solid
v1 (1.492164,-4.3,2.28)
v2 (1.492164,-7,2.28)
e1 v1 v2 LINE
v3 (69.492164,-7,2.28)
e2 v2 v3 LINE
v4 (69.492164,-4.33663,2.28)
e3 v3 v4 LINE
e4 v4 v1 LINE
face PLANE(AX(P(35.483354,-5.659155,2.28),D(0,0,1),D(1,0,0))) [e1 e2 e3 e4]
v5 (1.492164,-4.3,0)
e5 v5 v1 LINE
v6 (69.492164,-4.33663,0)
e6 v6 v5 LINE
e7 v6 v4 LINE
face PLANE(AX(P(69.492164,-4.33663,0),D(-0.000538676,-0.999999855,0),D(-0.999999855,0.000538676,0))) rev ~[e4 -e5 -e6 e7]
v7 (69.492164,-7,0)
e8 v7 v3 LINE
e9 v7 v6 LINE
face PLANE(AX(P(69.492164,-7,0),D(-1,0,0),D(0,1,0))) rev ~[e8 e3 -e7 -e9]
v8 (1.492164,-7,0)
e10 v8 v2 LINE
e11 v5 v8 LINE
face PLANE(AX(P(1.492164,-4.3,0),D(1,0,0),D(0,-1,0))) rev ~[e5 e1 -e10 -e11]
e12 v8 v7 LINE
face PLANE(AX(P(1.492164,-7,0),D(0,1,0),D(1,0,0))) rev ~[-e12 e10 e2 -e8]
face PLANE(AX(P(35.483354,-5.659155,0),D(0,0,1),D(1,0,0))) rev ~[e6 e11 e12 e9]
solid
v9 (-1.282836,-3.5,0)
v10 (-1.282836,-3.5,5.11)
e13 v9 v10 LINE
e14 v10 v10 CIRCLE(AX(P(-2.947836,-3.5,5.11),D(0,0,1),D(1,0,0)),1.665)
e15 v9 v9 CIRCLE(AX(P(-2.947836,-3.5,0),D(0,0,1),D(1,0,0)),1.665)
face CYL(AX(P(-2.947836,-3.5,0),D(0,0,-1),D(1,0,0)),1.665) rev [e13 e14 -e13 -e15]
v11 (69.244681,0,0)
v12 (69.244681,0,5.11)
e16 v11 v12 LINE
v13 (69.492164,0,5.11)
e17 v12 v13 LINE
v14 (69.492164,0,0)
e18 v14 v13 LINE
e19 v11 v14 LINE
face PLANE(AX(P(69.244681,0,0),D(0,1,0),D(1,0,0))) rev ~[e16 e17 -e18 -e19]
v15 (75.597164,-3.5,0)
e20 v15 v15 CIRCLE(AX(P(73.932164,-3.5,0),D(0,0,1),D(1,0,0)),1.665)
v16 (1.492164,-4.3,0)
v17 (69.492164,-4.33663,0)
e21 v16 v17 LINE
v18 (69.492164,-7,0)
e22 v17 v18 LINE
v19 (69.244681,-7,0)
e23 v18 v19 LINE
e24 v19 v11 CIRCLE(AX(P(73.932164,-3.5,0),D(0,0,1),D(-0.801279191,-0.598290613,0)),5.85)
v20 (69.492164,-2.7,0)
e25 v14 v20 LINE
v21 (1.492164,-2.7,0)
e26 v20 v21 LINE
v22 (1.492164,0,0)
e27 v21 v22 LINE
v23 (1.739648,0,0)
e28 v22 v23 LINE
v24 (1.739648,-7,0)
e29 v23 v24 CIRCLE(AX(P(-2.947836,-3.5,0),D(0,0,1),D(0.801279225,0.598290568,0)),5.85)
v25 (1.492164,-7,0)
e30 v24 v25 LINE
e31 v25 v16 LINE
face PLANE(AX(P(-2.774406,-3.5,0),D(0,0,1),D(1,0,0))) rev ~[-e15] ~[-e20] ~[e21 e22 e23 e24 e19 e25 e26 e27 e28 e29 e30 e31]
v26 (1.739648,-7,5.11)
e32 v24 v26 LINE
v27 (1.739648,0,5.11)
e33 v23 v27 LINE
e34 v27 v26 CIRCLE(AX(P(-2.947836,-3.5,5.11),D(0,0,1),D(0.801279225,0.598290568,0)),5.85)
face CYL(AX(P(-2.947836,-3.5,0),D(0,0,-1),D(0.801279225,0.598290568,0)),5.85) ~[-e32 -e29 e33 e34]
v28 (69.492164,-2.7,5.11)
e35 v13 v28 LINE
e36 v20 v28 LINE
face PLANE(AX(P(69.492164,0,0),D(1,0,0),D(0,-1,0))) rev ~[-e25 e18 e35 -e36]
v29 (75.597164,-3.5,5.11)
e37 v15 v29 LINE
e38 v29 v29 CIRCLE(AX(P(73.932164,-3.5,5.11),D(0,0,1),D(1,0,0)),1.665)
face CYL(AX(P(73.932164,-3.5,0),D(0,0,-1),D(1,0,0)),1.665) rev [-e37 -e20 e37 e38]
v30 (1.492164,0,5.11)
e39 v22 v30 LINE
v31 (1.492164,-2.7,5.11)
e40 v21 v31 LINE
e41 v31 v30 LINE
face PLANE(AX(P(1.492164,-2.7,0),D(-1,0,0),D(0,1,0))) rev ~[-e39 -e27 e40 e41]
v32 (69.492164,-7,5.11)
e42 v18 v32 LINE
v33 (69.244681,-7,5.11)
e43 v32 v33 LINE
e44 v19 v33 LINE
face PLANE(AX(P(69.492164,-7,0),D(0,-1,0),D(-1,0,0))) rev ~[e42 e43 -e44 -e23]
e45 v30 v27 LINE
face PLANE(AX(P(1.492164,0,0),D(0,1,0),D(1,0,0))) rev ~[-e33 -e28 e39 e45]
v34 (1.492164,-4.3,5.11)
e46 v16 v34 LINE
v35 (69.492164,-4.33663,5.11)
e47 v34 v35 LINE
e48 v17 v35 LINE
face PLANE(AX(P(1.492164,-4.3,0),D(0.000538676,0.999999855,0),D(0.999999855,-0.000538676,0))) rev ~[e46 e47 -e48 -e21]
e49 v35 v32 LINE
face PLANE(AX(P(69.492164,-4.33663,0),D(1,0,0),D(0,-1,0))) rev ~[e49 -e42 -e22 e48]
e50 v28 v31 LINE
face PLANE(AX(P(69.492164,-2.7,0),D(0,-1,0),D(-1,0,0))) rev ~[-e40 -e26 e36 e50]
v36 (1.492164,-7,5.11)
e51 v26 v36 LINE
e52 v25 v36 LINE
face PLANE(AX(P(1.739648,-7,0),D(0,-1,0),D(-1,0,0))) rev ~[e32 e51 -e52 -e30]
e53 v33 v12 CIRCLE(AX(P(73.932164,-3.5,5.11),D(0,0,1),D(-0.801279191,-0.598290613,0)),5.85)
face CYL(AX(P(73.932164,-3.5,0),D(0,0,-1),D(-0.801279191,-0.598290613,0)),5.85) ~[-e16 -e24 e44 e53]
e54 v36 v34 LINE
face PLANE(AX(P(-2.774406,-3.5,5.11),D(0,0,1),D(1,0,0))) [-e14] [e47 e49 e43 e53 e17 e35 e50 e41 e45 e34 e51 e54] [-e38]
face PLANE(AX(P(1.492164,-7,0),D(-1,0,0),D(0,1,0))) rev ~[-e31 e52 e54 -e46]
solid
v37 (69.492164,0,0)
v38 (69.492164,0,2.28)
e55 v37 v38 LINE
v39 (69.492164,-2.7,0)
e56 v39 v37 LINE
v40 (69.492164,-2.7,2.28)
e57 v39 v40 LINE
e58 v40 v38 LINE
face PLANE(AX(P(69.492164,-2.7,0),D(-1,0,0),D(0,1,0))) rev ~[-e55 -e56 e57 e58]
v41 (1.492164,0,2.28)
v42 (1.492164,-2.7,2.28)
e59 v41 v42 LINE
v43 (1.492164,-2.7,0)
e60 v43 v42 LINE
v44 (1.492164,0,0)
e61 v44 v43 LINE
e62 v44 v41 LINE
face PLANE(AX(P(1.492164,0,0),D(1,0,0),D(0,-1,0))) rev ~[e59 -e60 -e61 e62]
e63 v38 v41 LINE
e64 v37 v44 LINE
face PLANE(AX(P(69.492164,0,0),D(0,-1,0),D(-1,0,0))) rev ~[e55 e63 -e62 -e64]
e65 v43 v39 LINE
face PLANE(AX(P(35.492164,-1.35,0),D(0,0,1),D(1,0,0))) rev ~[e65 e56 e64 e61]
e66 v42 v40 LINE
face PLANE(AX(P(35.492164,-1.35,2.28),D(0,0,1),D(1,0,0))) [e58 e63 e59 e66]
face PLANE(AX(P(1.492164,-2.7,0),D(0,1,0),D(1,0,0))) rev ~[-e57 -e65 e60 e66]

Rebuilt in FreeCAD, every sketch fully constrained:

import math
import FreeCAD as App
import Part
import Sketcher


def add_polygon(sketch, points):
    """Adds a closed chain of lines whose ends are joined by coincident constraints."""
    first, n = sketch.GeometryCount, len(points)
    for a, b in zip(points, points[1:] + points[:1]):
        sketch.addGeometry(Part.LineSegment(App.Vector(*a, 0), App.Vector(*b, 0)), False)
    for i in range(n):
        sketch.addConstraint(Sketcher.Constraint("Coincident", first + i, 2, first + (i + 1) % n, 1))

doc = App.newDocument("Part")
body = doc.addObject("PartDesign::Body", "Body")
body.AllowCompound = True

sketch1 = body.newObject("Sketcher::SketchObject", "Sketch")
sketch1.AttachmentSupport = (doc.getObject("XY_Plane"), [""])
sketch1.MapMode = "FlatFace"
add_polygon(sketch1, [(1.492164, 0), (1.492164, -2.7), (69.492164, -2.7), (69.492164, 0)])
add_polygon(sketch1, [(1.492164, -7), (69.492164, -7), (69.492164, -4.33663), (1.492164, -4.3)])
sketch1.addConstraint(Sketcher.Constraint("Vertical", 0))
sketch1.addConstraint(Sketcher.Constraint("Horizontal", 1))
sketch1.addConstraint(Sketcher.Constraint("Vertical", 2))
sketch1.addConstraint(Sketcher.Constraint("Horizontal", 3))
sketch1.addConstraint(Sketcher.Constraint("Horizontal", 4))
sketch1.addConstraint(Sketcher.Constraint("Vertical", 5))
sketch1.addConstraint(Sketcher.Constraint("Vertical", 7))
sketch1.addConstraint(Sketcher.Constraint("PointOnObject", 2, 2, -1))
sketch1.addConstraint(Sketcher.Constraint("Vertical", 2, 2, 4, 2))
sketch1.addConstraint(Sketcher.Constraint("Vertical", 3, 2, 6, 2))
sketch1.addConstraint(Sketcher.Constraint("Equal", 2, 7))
sketch1.addConstraint(Sketcher.Constraint("DistanceX", 1, 1, 1, 2, 68.0))
sketch1.addConstraint(Sketcher.Constraint("DistanceY", 0, 2, 0, 1, 2.7))
sketch1.addConstraint(Sketcher.Constraint("DistanceY", 4, 2, -1, 1, 7.0))
sketch1.addConstraint(Sketcher.Constraint("DistanceY", 5, 1, 5, 2, 2.66337))
sketch1.addConstraint(Sketcher.Constraint("DistanceX", -1, 1, 0, 2, 1.492164))
pad1 = body.newObject("PartDesign::Pad", "Pad")
pad1.Profile = sketch1
pad1.Length = 2.28
body2 = doc.addObject("PartDesign::Body", "Body001")

sketch2 = body2.newObject("Sketcher::SketchObject", "Sketch001")
sketch2.AttachmentSupport = (doc.getObject("XY_Plane001"), [""])
sketch2.MapMode = "FlatFace"
sketch2.addGeometry(Part.LineSegment(App.Vector(1.492164, 0, 0), App.Vector(1.739648, 0, 0)), False)
sketch2.addGeometry(Part.ArcOfCircle(Part.Circle(App.Vector(-2.947836, -3.5, 0), App.Vector(0, 0, 1), 5.85), math.radians(36.747566), math.radians(323.252434)), False)
sketch2.addGeometry(Part.LineSegment(App.Vector(1.739648, -7, 0), App.Vector(1.492164, -7, 0)), False)
sketch2.addGeometry(Part.LineSegment(App.Vector(1.492164, -7, 0), App.Vector(1.492164, -4.3, 0)), False)
sketch2.addGeometry(Part.LineSegment(App.Vector(1.492164, -4.3, 0), App.Vector(69.492164, -4.33663, 0)), False)
sketch2.addGeometry(Part.LineSegment(App.Vector(69.492164, -4.33663, 0), App.Vector(69.492164, -7, 0)), False)
sketch2.addGeometry(Part.LineSegment(App.Vector(69.492164, -7, 0), App.Vector(69.244681, -7, 0)), False)
sketch2.addGeometry(Part.ArcOfCircle(Part.Circle(App.Vector(73.932164, -3.5, 0), App.Vector(0, 0, 1), 5.85), math.radians(-143.25243), math.radians(143.25243)), False)
sketch2.addGeometry(Part.LineSegment(App.Vector(69.244681, 0, 0), App.Vector(69.492164, 0, 0)), False)
sketch2.addGeometry(Part.LineSegment(App.Vector(69.492164, 0, 0), App.Vector(69.492164, -2.7, 0)), False)
sketch2.addGeometry(Part.LineSegment(App.Vector(69.492164, -2.7, 0), App.Vector(1.492164, -2.7, 0)), False)
sketch2.addGeometry(Part.LineSegment(App.Vector(1.492164, -2.7, 0), App.Vector(1.492164, 0, 0)), False)
sketch2.addGeometry(Part.Circle(App.Vector(-2.947836, -3.5, 0), App.Vector(0, 0, 1), 1.665), False)
sketch2.addGeometry(Part.Circle(App.Vector(73.932164, -3.5, 0), App.Vector(0, 0, 1), 1.665), False)
sketch2.addConstraint(Sketcher.Constraint("Coincident", 0, 2, 1, 1))
sketch2.addConstraint(Sketcher.Constraint("Coincident", 1, 2, 2, 1))
sketch2.addConstraint(Sketcher.Constraint("Coincident", 2, 2, 3, 1))
sketch2.addConstraint(Sketcher.Constraint("Coincident", 3, 2, 4, 1))
sketch2.addConstraint(Sketcher.Constraint("Coincident", 4, 2, 5, 1))
sketch2.addConstraint(Sketcher.Constraint("Coincident", 5, 2, 6, 1))
sketch2.addConstraint(Sketcher.Constraint("Coincident", 6, 2, 7, 1))
sketch2.addConstraint(Sketcher.Constraint("Coincident", 7, 2, 8, 1))
sketch2.addConstraint(Sketcher.Constraint("Coincident", 8, 2, 9, 1))
sketch2.addConstraint(Sketcher.Constraint("Coincident", 9, 2, 10, 1))
sketch2.addConstraint(Sketcher.Constraint("Coincident", 10, 2, 11, 1))
sketch2.addConstraint(Sketcher.Constraint("Coincident", 11, 2, 0, 1))
sketch2.addConstraint(Sketcher.Constraint("Horizontal", 0))
sketch2.addConstraint(Sketcher.Constraint("Horizontal", 2))
sketch2.addConstraint(Sketcher.Constraint("Vertical", 3))
sketch2.addConstraint(Sketcher.Constraint("Vertical", 5))
sketch2.addConstraint(Sketcher.Constraint("Horizontal", 6))
sketch2.addConstraint(Sketcher.Constraint("Horizontal", 8))
sketch2.addConstraint(Sketcher.Constraint("Vertical", 9))
sketch2.addConstraint(Sketcher.Constraint("Horizontal", 10))
sketch2.addConstraint(Sketcher.Constraint("Vertical", 11))
sketch2.addConstraint(Sketcher.Constraint("Coincident", 12, 3, 1, 3))
sketch2.addConstraint(Sketcher.Constraint("Coincident", 13, 3, 7, 3))
sketch2.addConstraint(Sketcher.Constraint("Equal", 1, 7))
sketch2.addConstraint(Sketcher.Constraint("Equal", 12, 13))
sketch2.addConstraint(Sketcher.Constraint("PointOnObject", 0, 2, -1))
sketch2.addConstraint(Sketcher.Constraint("PointOnObject", 7, 2, -1))
sketch2.addConstraint(Sketcher.Constraint("Horizontal", 1, 3, 7, 3))
sketch2.addConstraint(Sketcher.Constraint("Horizontal", 2, 2, 5, 2))
sketch2.addConstraint(Sketcher.Constraint("Vertical", 0, 2, 1, 2))
sketch2.addConstraint(Sketcher.Constraint("Vertical", 5, 2, 8, 2))
sketch2.addConstraint(Sketcher.Constraint("Vertical", 3, 2, 10, 2))
sketch2.addConstraint(Sketcher.Constraint("Equal", 2, 6))
sketch2.addConstraint(Sketcher.Constraint("Equal", 3, 9))
sketch2.addConstraint(Sketcher.Constraint("Diameter", 12, 3.33))
sketch2.addConstraint(Sketcher.Constraint("DistanceX", 10, 2, 10, 1, 68.0))
sketch2.addConstraint(Sketcher.Constraint("Radius", 1, 5.85))
sketch2.addConstraint(Sketcher.Constraint("DistanceY", 3, 1, 3, 2, 2.7))
sketch2.addConstraint(Sketcher.Constraint("DistanceY", 1, 2, -1, 1, 7.0))
sketch2.addConstraint(Sketcher.Constraint("DistanceX", 1, 3, 7, 3, 76.88))
sketch2.addConstraint(Sketcher.Constraint("DistanceY", 5, 2, 5, 1, 2.66337))
sketch2.addConstraint(Sketcher.Constraint("DistanceX", -1, 1, 0, 2, 1.739648))
pad2 = body2.newObject("PartDesign::Pad", "Pad001")
pad2.Profile = sketch2
pad2.Length = 5.11

doc.recompute()
